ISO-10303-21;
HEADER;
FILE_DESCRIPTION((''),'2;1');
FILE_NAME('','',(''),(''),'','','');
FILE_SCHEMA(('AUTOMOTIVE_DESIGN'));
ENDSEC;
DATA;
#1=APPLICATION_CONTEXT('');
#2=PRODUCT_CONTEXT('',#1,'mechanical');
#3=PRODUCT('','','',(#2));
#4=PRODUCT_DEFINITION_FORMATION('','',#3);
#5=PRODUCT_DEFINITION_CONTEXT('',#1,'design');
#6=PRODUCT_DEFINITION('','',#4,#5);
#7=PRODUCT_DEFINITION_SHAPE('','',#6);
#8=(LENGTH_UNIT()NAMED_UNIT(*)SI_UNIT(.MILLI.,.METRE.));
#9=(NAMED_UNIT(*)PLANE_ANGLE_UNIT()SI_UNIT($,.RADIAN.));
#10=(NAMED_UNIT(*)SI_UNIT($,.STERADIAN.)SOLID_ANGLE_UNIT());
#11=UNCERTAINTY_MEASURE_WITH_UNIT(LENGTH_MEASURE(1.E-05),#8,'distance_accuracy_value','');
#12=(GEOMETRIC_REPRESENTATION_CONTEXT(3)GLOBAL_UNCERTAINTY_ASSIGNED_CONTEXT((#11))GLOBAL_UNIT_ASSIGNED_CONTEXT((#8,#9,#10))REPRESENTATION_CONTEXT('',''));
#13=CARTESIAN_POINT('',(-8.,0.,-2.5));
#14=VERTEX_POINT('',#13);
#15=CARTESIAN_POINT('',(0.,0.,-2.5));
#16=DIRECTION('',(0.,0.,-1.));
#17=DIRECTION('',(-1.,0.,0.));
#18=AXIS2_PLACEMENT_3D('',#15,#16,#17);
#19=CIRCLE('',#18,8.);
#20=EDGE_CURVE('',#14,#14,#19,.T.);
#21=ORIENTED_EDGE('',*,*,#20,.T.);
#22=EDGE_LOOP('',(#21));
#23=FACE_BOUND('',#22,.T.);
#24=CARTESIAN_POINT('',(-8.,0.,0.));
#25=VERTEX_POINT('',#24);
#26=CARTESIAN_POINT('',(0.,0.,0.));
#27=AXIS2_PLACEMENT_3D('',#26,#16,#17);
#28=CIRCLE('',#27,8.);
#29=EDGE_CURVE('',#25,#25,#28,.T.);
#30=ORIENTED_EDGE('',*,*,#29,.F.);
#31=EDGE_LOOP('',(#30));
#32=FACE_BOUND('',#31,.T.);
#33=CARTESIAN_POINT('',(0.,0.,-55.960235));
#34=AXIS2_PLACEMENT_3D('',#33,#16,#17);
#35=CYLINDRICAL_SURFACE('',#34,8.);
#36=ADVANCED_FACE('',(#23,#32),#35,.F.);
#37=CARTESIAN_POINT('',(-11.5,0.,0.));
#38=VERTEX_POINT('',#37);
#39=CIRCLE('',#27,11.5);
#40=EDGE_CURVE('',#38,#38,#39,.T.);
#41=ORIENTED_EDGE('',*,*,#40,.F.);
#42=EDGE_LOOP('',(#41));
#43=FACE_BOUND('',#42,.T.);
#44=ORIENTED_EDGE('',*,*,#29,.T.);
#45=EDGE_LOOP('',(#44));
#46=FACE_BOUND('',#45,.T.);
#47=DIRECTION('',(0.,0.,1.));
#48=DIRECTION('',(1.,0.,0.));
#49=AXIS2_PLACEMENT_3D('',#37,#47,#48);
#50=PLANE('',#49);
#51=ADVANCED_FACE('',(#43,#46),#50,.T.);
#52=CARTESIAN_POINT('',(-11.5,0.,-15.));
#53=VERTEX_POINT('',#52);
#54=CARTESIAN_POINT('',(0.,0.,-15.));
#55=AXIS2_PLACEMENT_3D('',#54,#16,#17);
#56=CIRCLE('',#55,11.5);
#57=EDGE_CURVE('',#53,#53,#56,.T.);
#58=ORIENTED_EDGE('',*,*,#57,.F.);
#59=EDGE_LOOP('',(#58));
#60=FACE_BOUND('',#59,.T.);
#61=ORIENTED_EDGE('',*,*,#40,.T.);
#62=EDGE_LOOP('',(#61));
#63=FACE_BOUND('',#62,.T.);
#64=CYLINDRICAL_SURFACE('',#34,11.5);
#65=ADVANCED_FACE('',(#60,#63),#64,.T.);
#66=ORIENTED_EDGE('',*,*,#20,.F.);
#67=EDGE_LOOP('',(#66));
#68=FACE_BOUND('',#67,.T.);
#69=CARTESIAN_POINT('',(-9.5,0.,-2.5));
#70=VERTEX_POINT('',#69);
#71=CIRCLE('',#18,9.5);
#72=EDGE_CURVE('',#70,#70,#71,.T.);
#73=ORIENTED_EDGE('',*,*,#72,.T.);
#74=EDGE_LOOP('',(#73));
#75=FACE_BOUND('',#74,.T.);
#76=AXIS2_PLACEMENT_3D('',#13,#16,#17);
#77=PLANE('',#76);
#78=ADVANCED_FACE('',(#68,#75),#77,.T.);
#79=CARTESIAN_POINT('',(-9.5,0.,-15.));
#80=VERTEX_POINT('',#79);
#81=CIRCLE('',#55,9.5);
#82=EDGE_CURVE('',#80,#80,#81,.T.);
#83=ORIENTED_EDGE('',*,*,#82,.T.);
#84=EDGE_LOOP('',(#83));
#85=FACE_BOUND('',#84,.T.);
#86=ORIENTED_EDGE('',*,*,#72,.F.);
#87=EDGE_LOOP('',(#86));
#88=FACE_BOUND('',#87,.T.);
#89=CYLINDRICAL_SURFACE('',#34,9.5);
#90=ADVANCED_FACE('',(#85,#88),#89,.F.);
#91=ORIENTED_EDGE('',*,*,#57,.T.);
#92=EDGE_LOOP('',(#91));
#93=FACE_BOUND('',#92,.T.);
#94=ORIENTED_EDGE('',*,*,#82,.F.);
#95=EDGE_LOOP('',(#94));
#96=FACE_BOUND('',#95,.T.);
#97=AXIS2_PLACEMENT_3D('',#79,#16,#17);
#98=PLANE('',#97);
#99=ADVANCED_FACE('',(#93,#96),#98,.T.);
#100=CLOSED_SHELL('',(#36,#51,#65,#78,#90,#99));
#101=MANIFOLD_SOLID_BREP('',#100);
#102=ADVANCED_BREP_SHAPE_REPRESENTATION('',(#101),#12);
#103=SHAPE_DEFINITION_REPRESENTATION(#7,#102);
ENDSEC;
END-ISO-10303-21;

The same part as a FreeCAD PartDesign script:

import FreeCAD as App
import Part
import Sketcher

doc = App.newDocument("Part")
body = doc.addObject("PartDesign::Body", "Body")

sketch1 = body.newObject("Sketcher::SketchObject", "Sketch")
sketch1.AttachmentSupport = (doc.getObject("XZ_Plane"), [""])
sketch1.MapMode = "FlatFace"
sketch1.addGeometry([
    Part.LineSegment(App.Vector(-11.5, -15, 0), App.Vector(-11.5, 0, 0)),
    Part.LineSegment(App.Vector(-11.5, 0, 0), App.Vector(-8, 0, 0)),
    Part.LineSegment(App.Vector(-8, 0, 0), App.Vector(-8, -2.5, 0)),
    Part.LineSegment(App.Vector(-8, -2.5, 0), App.Vector(-9.5, -2.5, 0)),
    Part.LineSegment(App.Vector(-9.5, -2.5, 0), App.Vector(-9.5, -15, 0)),
    Part.LineSegment(App.Vector(-9.5, -15, 0), App.Vector(-11.5, -15, 0)),
], False)
sketch1.addConstraint([
    Sketcher.Constraint("Coincident", 0, 2, 1, 1),
    Sketcher.Constraint("Coincident", 1, 2, 2, 1),
    Sketcher.Constraint("Coincident", 2, 2, 3, 1),
    Sketcher.Constraint("Coincident", 3, 2, 4, 1),
    Sketcher.Constraint("Coincident", 4, 2, 5, 1),
    Sketcher.Constraint("Coincident", 5, 2, 0, 1),
    Sketcher.Constraint("Vertical", 0),
    Sketcher.Constraint("Horizontal", 1),
    Sketcher.Constraint("Vertical", 2),
    Sketcher.Constraint("Horizontal", 3),
    Sketcher.Constraint("Vertical", 4),
    Sketcher.Constraint("Horizontal", 5),
    Sketcher.Constraint("PointOnObject", 0, 2, -1),
    Sketcher.Constraint("DistanceX", 5, 2, 5, 1, 2.0),
    Sketcher.Constraint("DistanceY", 0, 1, 0, 2, 15.0),
    Sketcher.Constraint("DistanceX", 1, 1, 1, 2, 3.5),
    Sketcher.Constraint("DistanceY", 2, 2, 2, 1, 2.5),
    Sketcher.Constraint("DistanceX", 1, 2, -1, 1, 8.0),
])
revolution = body.newObject("PartDesign::Revolution", "Revolution")
revolution.Profile = sketch1
revolution.ReferenceAxis = (sketch1, ["V_Axis"])
revolution.Angle = 360

doc.recompute()
